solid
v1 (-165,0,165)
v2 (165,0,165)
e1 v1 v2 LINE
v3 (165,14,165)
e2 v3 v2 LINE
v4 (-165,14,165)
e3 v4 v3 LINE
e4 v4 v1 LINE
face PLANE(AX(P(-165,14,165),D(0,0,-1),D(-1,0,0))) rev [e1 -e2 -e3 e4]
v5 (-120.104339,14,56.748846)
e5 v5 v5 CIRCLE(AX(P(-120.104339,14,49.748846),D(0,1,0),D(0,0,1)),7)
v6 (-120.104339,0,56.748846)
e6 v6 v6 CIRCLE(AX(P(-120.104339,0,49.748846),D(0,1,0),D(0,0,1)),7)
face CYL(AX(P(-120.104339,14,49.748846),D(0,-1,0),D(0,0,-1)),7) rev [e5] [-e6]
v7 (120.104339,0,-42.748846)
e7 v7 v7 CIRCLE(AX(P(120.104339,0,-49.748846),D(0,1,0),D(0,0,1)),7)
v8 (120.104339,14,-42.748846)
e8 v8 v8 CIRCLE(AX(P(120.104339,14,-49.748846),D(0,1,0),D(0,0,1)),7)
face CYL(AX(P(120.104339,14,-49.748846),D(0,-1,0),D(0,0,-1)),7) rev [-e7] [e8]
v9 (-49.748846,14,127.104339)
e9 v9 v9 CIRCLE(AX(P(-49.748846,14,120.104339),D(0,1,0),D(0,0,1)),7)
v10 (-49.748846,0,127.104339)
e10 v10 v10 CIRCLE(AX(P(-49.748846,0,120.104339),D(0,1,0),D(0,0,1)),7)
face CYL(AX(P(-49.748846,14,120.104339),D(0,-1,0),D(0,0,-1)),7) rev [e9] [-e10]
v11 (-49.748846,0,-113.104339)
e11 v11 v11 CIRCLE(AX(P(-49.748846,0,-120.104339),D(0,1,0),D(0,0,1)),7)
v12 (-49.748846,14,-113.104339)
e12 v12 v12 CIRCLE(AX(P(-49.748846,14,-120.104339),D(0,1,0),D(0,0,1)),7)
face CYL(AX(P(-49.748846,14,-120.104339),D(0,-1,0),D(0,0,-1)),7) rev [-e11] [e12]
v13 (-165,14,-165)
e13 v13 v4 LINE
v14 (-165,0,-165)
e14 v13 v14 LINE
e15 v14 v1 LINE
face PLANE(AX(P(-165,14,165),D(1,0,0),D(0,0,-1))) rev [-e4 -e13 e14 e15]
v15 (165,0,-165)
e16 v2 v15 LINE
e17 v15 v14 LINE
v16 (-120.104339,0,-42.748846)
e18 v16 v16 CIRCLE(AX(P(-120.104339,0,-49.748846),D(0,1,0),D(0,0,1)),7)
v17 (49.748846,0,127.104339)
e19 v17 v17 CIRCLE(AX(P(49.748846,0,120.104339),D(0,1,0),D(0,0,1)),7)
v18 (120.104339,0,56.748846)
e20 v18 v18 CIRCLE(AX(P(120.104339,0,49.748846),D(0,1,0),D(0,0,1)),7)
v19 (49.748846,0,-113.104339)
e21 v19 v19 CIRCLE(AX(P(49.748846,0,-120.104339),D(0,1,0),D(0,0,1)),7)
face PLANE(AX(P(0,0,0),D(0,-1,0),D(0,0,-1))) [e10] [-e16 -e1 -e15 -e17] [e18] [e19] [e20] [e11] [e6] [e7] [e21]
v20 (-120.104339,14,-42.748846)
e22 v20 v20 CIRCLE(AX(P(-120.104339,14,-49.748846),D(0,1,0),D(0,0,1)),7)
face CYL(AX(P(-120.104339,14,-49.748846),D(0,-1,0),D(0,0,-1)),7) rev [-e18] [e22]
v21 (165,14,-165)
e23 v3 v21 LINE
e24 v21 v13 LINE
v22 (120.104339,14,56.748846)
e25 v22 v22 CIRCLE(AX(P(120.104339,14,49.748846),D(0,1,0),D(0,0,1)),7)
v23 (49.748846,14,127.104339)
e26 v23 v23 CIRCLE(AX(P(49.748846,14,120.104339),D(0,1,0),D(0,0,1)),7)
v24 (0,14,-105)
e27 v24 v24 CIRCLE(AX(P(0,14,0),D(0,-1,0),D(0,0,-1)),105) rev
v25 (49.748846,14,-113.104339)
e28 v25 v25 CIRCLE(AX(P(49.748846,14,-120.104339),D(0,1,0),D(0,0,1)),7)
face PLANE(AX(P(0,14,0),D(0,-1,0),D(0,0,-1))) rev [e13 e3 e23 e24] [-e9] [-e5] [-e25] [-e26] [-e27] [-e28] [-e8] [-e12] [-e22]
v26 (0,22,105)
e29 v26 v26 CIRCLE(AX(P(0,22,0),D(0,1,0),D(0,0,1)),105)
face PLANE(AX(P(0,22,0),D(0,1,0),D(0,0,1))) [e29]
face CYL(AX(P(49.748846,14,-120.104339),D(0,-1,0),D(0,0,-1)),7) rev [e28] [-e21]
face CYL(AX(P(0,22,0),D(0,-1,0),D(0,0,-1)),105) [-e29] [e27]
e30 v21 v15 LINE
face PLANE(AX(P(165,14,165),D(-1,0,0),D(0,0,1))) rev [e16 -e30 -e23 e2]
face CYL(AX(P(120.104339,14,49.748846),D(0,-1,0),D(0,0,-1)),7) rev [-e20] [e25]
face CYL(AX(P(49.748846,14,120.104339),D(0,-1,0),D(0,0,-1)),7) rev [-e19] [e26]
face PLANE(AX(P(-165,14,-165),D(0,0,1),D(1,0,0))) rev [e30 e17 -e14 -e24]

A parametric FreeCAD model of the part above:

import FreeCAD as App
import Part
import Sketcher


def add_polygon(sketch, points):
    """Adds a closed chain of lines whose ends are joined by coincident constraints."""
    first, n = sketch.GeometryCount, len(points)
    for a, b in zip(points, points[1:] + points[:1]):
        sketch.addGeometry(Part.LineSegment(App.Vector(*a, 0), App.Vector(*b, 0)), False)
    for i in range(n):
        sketch.addConstraint(Sketcher.Constraint("Coincident", first + i, 2, first + (i + 1) % n, 1))

doc = App.newDocument("Part")
body = doc.addObject("PartDesign::Body", "Body")

# Sketch on XZ plane
sketch1 = doc.addObject("Sketcher::SketchObject", "Sketch")
body.addObject(sketch1)
sketch1.AttachmentSupport = (doc.XZ_Plane, [""])
sketch1.MapMode = "FlatFace"
add_polygon(sketch1, [(-165, -165), (-165, 165), (165, 165), (165, -165)])  # lines 0-3
sketch1.addGeometry(Part.Circle(App.Vector(-49.748846, 120.104339, 0), App.Vector(0, 0, 1), 7), False)  # 4
sketch1.addGeometry(Part.Circle(App.Vector(-120.104339, 49.748846, 0), App.Vector(0, 0, 1), 7), False)  # 5
sketch1.addGeometry(Part.Circle(App.Vector(-49.748846, 49.748846, 0), App.Vector(0, 0, 1), 5.751372), False)  # 6
sketch1.addGeometry(Part.Circle(App.Vector(49.748846, 120.104339, 0), App.Vector(0, 0, 1), 7), False)  # 7
sketch1.addGeometry(Part.Circle(App.Vector(49.748846, 49.748846, 0), App.Vector(0, 0, 1), 5.248628), False)  # 8
sketch1.addGeometry(Part.Circle(App.Vector(120.104339, 49.748846, 0), App.Vector(0, 0, 1), 7), False)  # 9
sketch1.addGeometry(Part.Circle(App.Vector(-120.104339, -49.748846, 0), App.Vector(0, 0, 1), 7), False)  # 10
sketch1.addGeometry(Part.Circle(App.Vector(-49.748846, -49.748846, 0), App.Vector(0, 0, 1), 5.751372), False)  # 11
sketch1.addGeometry(Part.Circle(App.Vector(-49.748846, -120.104339, 0), App.Vector(0, 0, 1), 7), False)  # 12
sketch1.addGeometry(Part.Circle(App.Vector(49.748846, -49.748846, 0), App.Vector(0, 0, 1), 5.248628), False)  # 13
sketch1.addGeometry(Part.Circle(App.Vector(120.104339, -49.748846, 0), App.Vector(0, 0, 1), 7), False)  # 14
sketch1.addGeometry(Part.Circle(App.Vector(49.748846, -120.104339, 0), App.Vector(0, 0, 1), 7), False)  # 15
sketch1.addConstraint([
    Sketcher.Constraint("Vertical", 0),
    Sketcher.Constraint("Horizontal", 1),
    Sketcher.Constraint("Vertical", 2),
    Sketcher.Constraint("Horizontal", 3),
    Sketcher.Constraint("Equal", 4, 5),
    Sketcher.Constraint("Equal", 5, 7),
    Sketcher.Constraint("Equal", 7, 9),
    Sketcher.Constraint("Equal", 9, 10),
    Sketcher.Constraint("Equal", 6, 11),
    Sketcher.Constraint("Equal", 10, 12),
    Sketcher.Constraint("Equal", 8, 13),
    Sketcher.Constraint("Equal", 12, 14),
    Sketcher.Constraint("Equal", 14, 15),
    Sketcher.Constraint("Symmetric", 9, 3, 10, 3, -1, 1),
    Sketcher.Constraint("Symmetric", 8, 3, 11, 3, -1, 1),
    Sketcher.Constraint("Symmetric", 7, 3, 12, 3, -1, 1),
    Sketcher.Constraint("Symmetric", 6, 3, 13, 3, -1, 1),
    Sketcher.Constraint("Symmetric", 5, 3, 14, 3, -1, 1),
    Sketcher.Constraint("Symmetric", 4, 3, 15, 3, -1, 1),
    Sketcher.Constraint("Symmetric", 0, 2, 2, 2, -1, 1),
    Sketcher.Constraint("Symmetric", 4, 3, 7, 3, -2),
    Sketcher.Constraint("Symmetric", 6, 3, 8, 3, -2),
    Sketcher.Constraint("Symmetric", 5, 3, 9, 3, -2),
    Sketcher.Constraint("Horizontal", 5, 3, 6, 3),
    Sketcher.Constraint("Vertical", 4, 3, 6, 3),
    Sketcher.Constraint("Equal", 3, 0),
    Sketcher.Constraint("Diameter", 4, 14.0),
    Sketcher.Constraint("DistanceX", 1, 1, 1, 2, 330.0),
    Sketcher.Constraint("Diameter", 6, 11.502743),
    Sketcher.Constraint("Diameter", 8, 10.497257),
    Sketcher.Constraint("DistanceY", -1, 1, 4, 3, 120.104339),
    Sketcher.Constraint("DistanceX", 5, 3, -1, 1, 120.104339),
    Sketcher.Constraint("DistanceX", 4, 3, -1, 1, 49.748846),
    Sketcher.Constraint("DistanceY", -1, 1, 5, 3, 49.748846),
])
pad1 = doc.addObject("PartDesign::Pad", "Pad")
body.addObject(pad1)
pad1.Profile = sketch1
pad1.Length = 14
pad1.Reversed = True

# Sketch on XZ plane
sketch2 = doc.addObject("Sketcher::SketchObject", "Sketch001")
body.addObject(sketch2)
sketch2.AttachmentSupport = (doc.XZ_Plane, [""])
sketch2.MapMode = "FlatFace"
sketch2.addGeometry(Part.Circle(App.Vector(0, 0, 0), App.Vector(0, 0, 1), 105), False)
sketch2.addConstraint([
    Sketcher.Constraint("Coincident", 0, 3, -1, 1),
    Sketcher.Constraint("Diameter", 0, 210.0),
])
pad2 = doc.addObject("PartDesign::Pad", "Pad001")
body.addObject(pad2)
pad2.Profile = sketch2
pad2.Length = 22
pad2.Reversed = True

doc.recompute()
